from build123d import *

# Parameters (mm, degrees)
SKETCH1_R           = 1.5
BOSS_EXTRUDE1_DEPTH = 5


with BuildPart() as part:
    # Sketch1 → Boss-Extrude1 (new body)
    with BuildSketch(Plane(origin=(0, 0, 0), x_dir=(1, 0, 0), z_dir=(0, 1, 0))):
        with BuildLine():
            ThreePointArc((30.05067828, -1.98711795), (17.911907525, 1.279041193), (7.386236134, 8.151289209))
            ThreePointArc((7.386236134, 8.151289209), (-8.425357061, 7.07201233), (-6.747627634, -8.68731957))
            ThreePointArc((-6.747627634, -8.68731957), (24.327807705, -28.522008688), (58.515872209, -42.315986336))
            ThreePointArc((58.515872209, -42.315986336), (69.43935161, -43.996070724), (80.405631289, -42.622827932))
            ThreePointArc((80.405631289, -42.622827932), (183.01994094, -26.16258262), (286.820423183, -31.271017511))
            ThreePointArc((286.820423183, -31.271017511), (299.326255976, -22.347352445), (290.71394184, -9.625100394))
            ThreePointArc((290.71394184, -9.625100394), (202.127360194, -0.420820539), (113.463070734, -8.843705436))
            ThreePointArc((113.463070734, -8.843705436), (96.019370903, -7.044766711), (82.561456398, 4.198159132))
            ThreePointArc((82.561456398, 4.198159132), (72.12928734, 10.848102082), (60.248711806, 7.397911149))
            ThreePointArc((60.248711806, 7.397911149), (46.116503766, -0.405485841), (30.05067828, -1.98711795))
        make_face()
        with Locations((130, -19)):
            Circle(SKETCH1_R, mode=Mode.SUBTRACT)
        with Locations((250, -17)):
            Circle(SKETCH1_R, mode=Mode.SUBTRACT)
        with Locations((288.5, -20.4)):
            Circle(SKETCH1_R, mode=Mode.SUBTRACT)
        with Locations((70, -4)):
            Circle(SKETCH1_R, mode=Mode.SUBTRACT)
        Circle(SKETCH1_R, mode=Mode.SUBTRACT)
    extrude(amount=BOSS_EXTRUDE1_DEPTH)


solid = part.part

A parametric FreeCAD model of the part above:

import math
import FreeCAD as App
import Part
import Sketcher

doc = App.newDocument("Part")
params = doc.addObject("Spreadsheet::Sheet", "Params")
for row, (alias, value) in enumerate([
    ("sketch1_diameter", "3 mm"),
    ("sketch1_radius", "40 mm"),
    ("sketch1_radius2", "11 mm"),
    ("sketch1_radius3", "200 mm"),
    ("sketch1_radius4", "500 mm"),
    ("pad1_length", "5 mm"),
], start=1):
    params.set(f"A{row}", alias)
    params.set(f"B{row}", "=" + value)
    params.setAlias(f"B{row}", alias)

body = doc.addObject("PartDesign::Body", "Body")

# Sketch on XZ plane
sketch1 = body.newObject("Sketcher::SketchObject", "Sketch")
sketch1.AttachmentSupport = (doc.getObject("XZ_Plane"), [""])
sketch1.MapMode = "FlatFace"
sketch1.addGeometry([
    Part.ArcOfCircle(Part.Circle(App.Vector(34.2, -37.8, 0), App.Vector(0, 0, 1), 40), math.radians(96), math.radians(132)),  # 0
    Part.ArcOfCircle(Part.Circle(App.Vector(0, 0, 0), App.Vector(0, 0, 1), 11), math.radians(128), math.radians(312)),  # 1
    Part.ArcOfCircle(Part.Circle(App.Vector(115.9, -149.3, 0), App.Vector(0, 0, 1), 200), math.radians(107), math.radians(128)),  # 2
    Part.ArcOfCircle(Part.Circle(App.Vector(70, 4, 0), App.Vector(0, 0, 1), 40), math.radians(75), math.radians(107)),  # 3
    Part.ArcOfCircle(Part.Circle(App.Vector(210.5, 525.4, 0), App.Vector(0, 0, 1), 500), math.radians(-105), math.radians(-81)),  # 4
    Part.ArcOfCircle(Part.Circle(App.Vector(288.5, 20.4, 0), App.Vector(0, 0, 1), 11), math.radians(-78), math.radians(99)),  # 5
    Part.ArcOfCircle(Part.Circle(App.Vector(200.1, 450.4, 0), App.Vector(0, 0, 1), 450), math.radians(-101), math.radians(-78)),  # 6
    Part.ArcOfCircle(Part.Circle(App.Vector(107.7, -20.6, 0), App.Vector(0, 0, 1), 30), math.radians(79), math.radians(147)),  # 7
    Part.ArcOfCircle(Part.Circle(App.Vector(70, 4, 0), App.Vector(0, 0, 1), 15), math.radians(-131), math.radians(-33)),  # 8
    Part.ArcOfCircle(Part.Circle(App.Vector(34.2, -37.8, 0), App.Vector(0, 0, 1), 40), math.radians(49), math.radians(96)),  # 9
    Part.Circle(App.Vector(130, 19, 0), App.Vector(0, 0, 1), 1.5),  # 10
    Part.Circle(App.Vector(288.5, 20.4, 0), App.Vector(0, 0, 1), 1.5),  # 11
    Part.Circle(App.Vector(250, 17, 0), App.Vector(0, 0, 1), 1.5),  # 12
    Part.Circle(App.Vector(70, 4, 0), App.Vector(0, 0, 1), 1.5),  # 13
    Part.Circle(App.Vector(0, 0, 0), App.Vector(0, 0, 1), 1.5),  # 14
], False)
sketch1.addConstraint([
    Sketcher.Constraint("Tangent", 0, 2, 1, 2),
    Sketcher.Constraint("Tangent", 1, 1, 2, 2),
    Sketcher.Constraint("Tangent", 2, 1, 3, 2),
    Sketcher.Constraint("Tangent", 3, 1, 4, 1),
    Sketcher.Constraint("Tangent", 4, 2, 5, 2),
    Sketcher.Constraint("Tangent", 5, 1, 6, 2),
    Sketcher.Constraint("Tangent", 6, 1, 7, 1),
    Sketcher.Constraint("Tangent", 7, 2, 8, 2),
    Sketcher.Constraint("Tangent", 8, 1, 9, 1),
    Sketcher.Constraint("Tangent", 9, 2, 0, 1),
    Sketcher.Constraint("Coincident", 1, 3, -1, 1),
    Sketcher.Constraint("Coincident", 14, 3, -1, 1),
    Sketcher.Constraint("Coincident", 8, 3, 3, 3),
    Sketcher.Constraint("Coincident", 11, 3, 5, 3),
    Sketcher.Constraint("Coincident", 13, 3, 3, 3),
    Sketcher.Constraint("Equal", 0, 3),
    Sketcher.Constraint("Equal", 1, 5),
    Sketcher.Constraint("Equal", 3, 9),
    Sketcher.Constraint("Equal", 10, 11),
    Sketcher.Constraint("Equal", 11, 12),
    Sketcher.Constraint("Equal", 12, 13),
    Sketcher.Constraint("Equal", 13, 14),
    Sketcher.Constraint("Diameter", 10, 3.0),
    Sketcher.Constraint("Radius", 0, 40.0),
    Sketcher.Constraint("Radius", 1, 11.0),
    Sketcher.Constraint("Radius", 2, 200.0),
    Sketcher.Constraint("Radius", 4, 500.0),
    Sketcher.Constraint("Radius", 6, 450.0),
    Sketcher.Constraint("Radius", 7, 30.0),
    Sketcher.Constraint("Radius", 8, 15.0),
    Sketcher.Constraint("DistanceX", -1, 1, 3, 3, 70.0),
    Sketcher.Constraint("DistanceY", -1, 1, 3, 3, 4.0),
    Sketcher.Constraint("DistanceX", -1, 1, 10, 3, 130.0),
    Sketcher.Constraint("DistanceY", -1, 1, 10, 3, 19.0),
    Sketcher.Constraint("DistanceX", -1, 1, 12, 3, 250.0),
    Sketcher.Constraint("DistanceY", -1, 1, 12, 3, 17.0),
    Sketcher.Constraint("DistanceX", -1, 1, 5, 3, 288.5),
    Sketcher.Constraint("DistanceY", -1, 1, 5, 3, 20.4),
    Sketcher.Constraint("DistanceY", 9, 2, 1, 1, 6.700202),
    Sketcher.Constraint("DistanceX", -1, 1, 7, 3, 107.684369),
])
sketch1.setExpression("Constraints[22]", "Params.sketch1_diameter")
sketch1.setExpression("Constraints[23]", "Params.sketch1_radius")
sketch1.setExpression("Constraints[24]", "Params.sketch1_radius2")
sketch1.setExpression("Constraints[25]", "Params.sketch1_radius3")
sketch1.setExpression("Constraints[26]", "Params.sketch1_radius4")
pad1 = body.newObject("PartDesign::Pad", "Pad")
pad1.Profile = sketch1
pad1.setExpression("Length", "Params.pad1_length")
pad1.Reversed = True

doc.recompute()
